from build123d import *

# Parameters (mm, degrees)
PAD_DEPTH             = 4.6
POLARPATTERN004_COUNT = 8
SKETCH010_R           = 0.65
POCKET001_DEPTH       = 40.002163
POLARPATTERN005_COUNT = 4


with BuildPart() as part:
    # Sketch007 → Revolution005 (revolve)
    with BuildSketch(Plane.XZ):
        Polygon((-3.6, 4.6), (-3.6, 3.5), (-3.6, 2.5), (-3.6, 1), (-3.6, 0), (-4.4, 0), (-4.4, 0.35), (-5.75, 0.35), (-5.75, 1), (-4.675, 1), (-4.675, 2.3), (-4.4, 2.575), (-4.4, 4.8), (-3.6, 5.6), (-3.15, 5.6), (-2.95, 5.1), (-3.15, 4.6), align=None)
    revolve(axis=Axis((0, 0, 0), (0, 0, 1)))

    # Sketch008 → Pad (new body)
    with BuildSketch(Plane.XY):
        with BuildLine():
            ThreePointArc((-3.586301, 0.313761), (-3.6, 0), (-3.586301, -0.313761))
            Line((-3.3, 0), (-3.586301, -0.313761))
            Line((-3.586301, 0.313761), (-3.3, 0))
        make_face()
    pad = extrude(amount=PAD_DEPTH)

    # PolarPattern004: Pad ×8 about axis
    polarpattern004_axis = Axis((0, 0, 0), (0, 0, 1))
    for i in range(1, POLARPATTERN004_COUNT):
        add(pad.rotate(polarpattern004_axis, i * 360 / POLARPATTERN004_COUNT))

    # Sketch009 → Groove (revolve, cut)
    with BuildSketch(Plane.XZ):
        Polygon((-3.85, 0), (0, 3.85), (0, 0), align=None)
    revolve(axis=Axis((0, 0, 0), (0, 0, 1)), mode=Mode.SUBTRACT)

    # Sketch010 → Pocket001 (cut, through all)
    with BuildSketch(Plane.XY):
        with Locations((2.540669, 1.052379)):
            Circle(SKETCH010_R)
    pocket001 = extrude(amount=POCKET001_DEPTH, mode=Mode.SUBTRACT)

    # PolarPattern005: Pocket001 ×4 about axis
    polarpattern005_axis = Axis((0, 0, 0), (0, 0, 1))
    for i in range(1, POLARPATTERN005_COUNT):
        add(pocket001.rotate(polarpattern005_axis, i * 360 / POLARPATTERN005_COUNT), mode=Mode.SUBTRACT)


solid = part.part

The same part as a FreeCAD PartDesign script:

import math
import FreeCAD as App
import Part
import Sketcher
Q = App.Units.Quantity

doc = App.newDocument("Part")
body = doc.addObject("PartDesign::Body", "Body")

# Sketch on XZ plane
sketch1 = body.newObject("Sketcher::SketchObject", "Sketch")
sketch1.AttachmentSupport = (doc.getObject("XZ_Plane"), [""])
sketch1.MapMode = "FlatFace"
sketch1.addGeometry([
    Part.LineSegment(App.Vector(-3.6, 0, 0), App.Vector(-3.6, 4.6, 0)),  # 0
    Part.LineSegment(App.Vector(-3.6, 4.6, 0), App.Vector(-3.15, 4.6, 0)),  # 1
    Part.LineSegment(App.Vector(-3.15, 4.6, 0), App.Vector(-2.95, 5.1, 0)),  # 2
    Part.LineSegment(App.Vector(-2.95, 5.1, 0), App.Vector(-3.15, 5.6, 0)),  # 3
    Part.LineSegment(App.Vector(-3.15, 5.6, 0), App.Vector(-3.6, 5.6, 0)),  # 4
    Part.LineSegment(App.Vector(-3.6, 5.6, 0), App.Vector(-4.4, 4.8, 0)),  # 5
    Part.LineSegment(App.Vector(-4.4, 4.8, 0), App.Vector(-4.4, 2.575, 0)),  # 6
    Part.LineSegment(App.Vector(-4.4, 2.575, 0), App.Vector(-4.675, 2.3, 0)),  # 7
    Part.LineSegment(App.Vector(-4.675, 2.3, 0), App.Vector(-4.675, 1, 0)),  # 8
    Part.LineSegment(App.Vector(-4.675, 1, 0), App.Vector(-5.75, 1, 0)),  # 9
    Part.LineSegment(App.Vector(-5.75, 1, 0), App.Vector(-5.75, 0.35, 0)),  # 10
    Part.LineSegment(App.Vector(-5.75, 0.35, 0), App.Vector(-4.4, 0.35, 0)),  # 11
    Part.LineSegment(App.Vector(-4.4, 0.35, 0), App.Vector(-4.4, 0, 0)),  # 12
    Part.LineSegment(App.Vector(-4.4, 0, 0), App.Vector(-3.6, 0, 0)),  # 13
], False)
sketch1.addConstraint([
    Sketcher.Constraint("Coincident", 0, 2, 1, 1),
    Sketcher.Constraint("Coincident", 1, 2, 2, 1),
    Sketcher.Constraint("Coincident", 2, 2, 3, 1),
    Sketcher.Constraint("Coincident", 3, 2, 4, 1),
    Sketcher.Constraint("Coincident", 4, 2, 5, 1),
    Sketcher.Constraint("Coincident", 5, 2, 6, 1),
    Sketcher.Constraint("Coincident", 6, 2, 7, 1),
    Sketcher.Constraint("Coincident", 7, 2, 8, 1),
    Sketcher.Constraint("Coincident", 8, 2, 9, 1),
    Sketcher.Constraint("Coincident", 9, 2, 10, 1),
    Sketcher.Constraint("Coincident", 10, 2, 11, 1),
    Sketcher.Constraint("Coincident", 11, 2, 12, 1),
    Sketcher.Constraint("Coincident", 12, 2, 13, 1),
    Sketcher.Constraint("Coincident", 13, 2, 0, 1),
    Sketcher.Constraint("Vertical", 0),
    Sketcher.Constraint("Horizontal", 1),
    Sketcher.Constraint("Horizontal", 4),
    Sketcher.Constraint("Vertical", 6),
    Sketcher.Constraint("Vertical", 8),
    Sketcher.Constraint("Horizontal", 9),
    Sketcher.Constraint("Vertical", 10),
    Sketcher.Constraint("Horizontal", 11),
    Sketcher.Constraint("Vertical", 12),
    Sketcher.Constraint("Horizontal", 13),
    Sketcher.Constraint("PointOnObject", 12, 2, -1),
    Sketcher.Constraint("Parallel", 5, 7),
    Sketcher.Constraint("Vertical", 1, 2, 3, 2),
    Sketcher.Constraint("Vertical", 0, 2, 4, 2),
    Sketcher.Constraint("Vertical", 6, 2, 11, 2),
    Sketcher.Constraint("Equal", 2, 3),
    Sketcher.Constraint("Angle", 5, Q("-135 deg")),
    Sketcher.Constraint("DistanceX", 13, 1, 13, 2, 0.8),
    Sketcher.Constraint("DistanceY", 0, 1, 0, 2, 4.6),
    Sketcher.Constraint("DistanceY", 8, 2, 8, 1, 1.3),
    Sketcher.Constraint("DistanceY", -1, 1, 8, 2, 1.0),
    Sketcher.Constraint("DistanceY", 1, 2, 3, 2, 1.0),
    Sketcher.Constraint("DistanceX", 1, 1, 1, 2, 0.45),
    Sketcher.Constraint("DistanceX", 11, 1, 11, 2, 1.35),
    Sketcher.Constraint("DistanceY", 10, 2, 10, 1, 0.65),
    Sketcher.Constraint("DistanceX", 0, 2, -1, 1, 3.6),
    Sketcher.Constraint("DistanceX", 1, 2, 2, 2, 0.2),
    Sketcher.Constraint("DistanceX", 9, 2, 9, 1, 1.075),
])
revolution = body.newObject("PartDesign::Revolution", "Revolution")
revolution.Profile = sketch1
revolution.ReferenceAxis = (sketch1, ["V_Axis"])
revolution.Angle = 360

# Sketch on XY plane
sketch2 = body.newObject("Sketcher::SketchObject", "Sketch001")
sketch2.AttachmentSupport = (doc.getObject("XY_Plane"), [""])
sketch2.MapMode = "FlatFace"
sketch2.addGeometry([
    Part.ArcOfCircle(Part.Circle(App.Vector(0.00003, 0, 0), App.Vector(0, 0, 1), 3.60003), math.radians(175.000037), math.radians(184.999963)),
    Part.LineSegment(App.Vector(-3.586301, -0.313761, 0), App.Vector(-3.3, 0, 0)),
    Part.LineSegment(App.Vector(-3.3, 0, 0), App.Vector(-3.586301, 0.313761, 0)),
], False)
sketch2.addConstraint([
    Sketcher.Constraint("Coincident", 0, 2, 1, 1),
    Sketcher.Constraint("Coincident", 1, 2, 2, 1),
    Sketcher.Constraint("Coincident", 2, 2, 0, 1),
    Sketcher.Constraint("Symmetric", 0, 2, 2, 2, -1),
    Sketcher.Constraint("PointOnObject", 1, 2, -1),
    Sketcher.Constraint("DistanceX", 1, 2, -1, 1, 3.3),
    Sketcher.Constraint("Radius", 0, 3.60003),
    Sketcher.Constraint("DistanceX", 0, 2, -1, 1, 3.586301),
    Sketcher.Constraint("Distance", 1, 0.424752),
])
pad1 = body.newObject("PartDesign::Pad", "Pad")
pad1.Profile = sketch2
pad1.Length = 4.6
doc.recompute()

polarpattern = body.newObject("PartDesign::PolarPattern", "PolarPattern")
polarpattern.Originals = [pad1]
polarpattern.Axis = (doc.getObject("Z_Axis"), [""])
polarpattern.Angle = 360
polarpattern.Occurrences = 8
body.Tip = polarpattern

# Sketch on XZ plane
sketch3 = body.newObject("Sketcher::SketchObject", "Sketch002")
sketch3.AttachmentSupport = (doc.getObject("XZ_Plane"), [""])
sketch3.MapMode = "FlatFace"
sketch3.addGeometry([
    Part.LineSegment(App.Vector(0, 3.85, 0), App.Vector(-3.85, 0, 0)),
    Part.LineSegment(App.Vector(-3.85, 0, 0), App.Vector(0, 0, 0)),
    Part.LineSegment(App.Vector(0, 0, 0), App.Vector(0, 3.85, 0)),
], False)
sketch3.addConstraint([
    Sketcher.Constraint("Coincident", 0, 2, 1, 1),
    Sketcher.Constraint("Coincident", 1, 2, 2, 1),
    Sketcher.Constraint("Coincident", 2, 2, 0, 1),
    Sketcher.Constraint("Horizontal", 1),
    Sketcher.Constraint("Vertical", 2),
    Sketcher.Constraint("Coincident", 1, 2, -1, 1),
    Sketcher.Constraint("Equal", 1, 2),
    Sketcher.Constraint("DistanceX", 1, 1, 1, 2, 3.85),
])
groove = body.newObject("PartDesign::Groove", "Groove")
groove.Profile = sketch3
groove.ReferenceAxis = (sketch3, ["V_Axis"])
groove.Angle = 360

# Sketch on XY plane
sketch4 = body.newObject("Sketcher::SketchObject", "Sketch003")
sketch4.AttachmentSupport = (doc.getObject("XY_Plane"), [""])
sketch4.MapMode = "FlatFace"
sketch4.addGeometry(Part.Circle(App.Vector(2.540669, 1.052379, 0), App.Vector(0, 0, 1), 0.65), False)
sketch4.addConstraint([
    Sketcher.Constraint("Diameter", 0, 1.3),
    Sketcher.Constraint("DistanceX", -1, 1, 0, 3, 2.540669),
    Sketcher.Constraint("DistanceY", -1, 1, 0, 3, 1.052379),
])
pocket1 = body.newObject("PartDesign::Pocket", "Pocket")
pocket1.Profile = sketch4
pocket1.Type = "ThroughAll"
pocket1.Reversed = True
doc.recompute()

polarpattern2 = body.newObject("PartDesign::PolarPattern", "PolarPattern001")
polarpattern2.Originals = [pocket1]
polarpattern2.Axis = (doc.getObject("Z_Axis"), [""])
polarpattern2.Angle = 360
polarpattern2.Occurrences = 4
body.Tip = polarpattern2

doc.recompute()
